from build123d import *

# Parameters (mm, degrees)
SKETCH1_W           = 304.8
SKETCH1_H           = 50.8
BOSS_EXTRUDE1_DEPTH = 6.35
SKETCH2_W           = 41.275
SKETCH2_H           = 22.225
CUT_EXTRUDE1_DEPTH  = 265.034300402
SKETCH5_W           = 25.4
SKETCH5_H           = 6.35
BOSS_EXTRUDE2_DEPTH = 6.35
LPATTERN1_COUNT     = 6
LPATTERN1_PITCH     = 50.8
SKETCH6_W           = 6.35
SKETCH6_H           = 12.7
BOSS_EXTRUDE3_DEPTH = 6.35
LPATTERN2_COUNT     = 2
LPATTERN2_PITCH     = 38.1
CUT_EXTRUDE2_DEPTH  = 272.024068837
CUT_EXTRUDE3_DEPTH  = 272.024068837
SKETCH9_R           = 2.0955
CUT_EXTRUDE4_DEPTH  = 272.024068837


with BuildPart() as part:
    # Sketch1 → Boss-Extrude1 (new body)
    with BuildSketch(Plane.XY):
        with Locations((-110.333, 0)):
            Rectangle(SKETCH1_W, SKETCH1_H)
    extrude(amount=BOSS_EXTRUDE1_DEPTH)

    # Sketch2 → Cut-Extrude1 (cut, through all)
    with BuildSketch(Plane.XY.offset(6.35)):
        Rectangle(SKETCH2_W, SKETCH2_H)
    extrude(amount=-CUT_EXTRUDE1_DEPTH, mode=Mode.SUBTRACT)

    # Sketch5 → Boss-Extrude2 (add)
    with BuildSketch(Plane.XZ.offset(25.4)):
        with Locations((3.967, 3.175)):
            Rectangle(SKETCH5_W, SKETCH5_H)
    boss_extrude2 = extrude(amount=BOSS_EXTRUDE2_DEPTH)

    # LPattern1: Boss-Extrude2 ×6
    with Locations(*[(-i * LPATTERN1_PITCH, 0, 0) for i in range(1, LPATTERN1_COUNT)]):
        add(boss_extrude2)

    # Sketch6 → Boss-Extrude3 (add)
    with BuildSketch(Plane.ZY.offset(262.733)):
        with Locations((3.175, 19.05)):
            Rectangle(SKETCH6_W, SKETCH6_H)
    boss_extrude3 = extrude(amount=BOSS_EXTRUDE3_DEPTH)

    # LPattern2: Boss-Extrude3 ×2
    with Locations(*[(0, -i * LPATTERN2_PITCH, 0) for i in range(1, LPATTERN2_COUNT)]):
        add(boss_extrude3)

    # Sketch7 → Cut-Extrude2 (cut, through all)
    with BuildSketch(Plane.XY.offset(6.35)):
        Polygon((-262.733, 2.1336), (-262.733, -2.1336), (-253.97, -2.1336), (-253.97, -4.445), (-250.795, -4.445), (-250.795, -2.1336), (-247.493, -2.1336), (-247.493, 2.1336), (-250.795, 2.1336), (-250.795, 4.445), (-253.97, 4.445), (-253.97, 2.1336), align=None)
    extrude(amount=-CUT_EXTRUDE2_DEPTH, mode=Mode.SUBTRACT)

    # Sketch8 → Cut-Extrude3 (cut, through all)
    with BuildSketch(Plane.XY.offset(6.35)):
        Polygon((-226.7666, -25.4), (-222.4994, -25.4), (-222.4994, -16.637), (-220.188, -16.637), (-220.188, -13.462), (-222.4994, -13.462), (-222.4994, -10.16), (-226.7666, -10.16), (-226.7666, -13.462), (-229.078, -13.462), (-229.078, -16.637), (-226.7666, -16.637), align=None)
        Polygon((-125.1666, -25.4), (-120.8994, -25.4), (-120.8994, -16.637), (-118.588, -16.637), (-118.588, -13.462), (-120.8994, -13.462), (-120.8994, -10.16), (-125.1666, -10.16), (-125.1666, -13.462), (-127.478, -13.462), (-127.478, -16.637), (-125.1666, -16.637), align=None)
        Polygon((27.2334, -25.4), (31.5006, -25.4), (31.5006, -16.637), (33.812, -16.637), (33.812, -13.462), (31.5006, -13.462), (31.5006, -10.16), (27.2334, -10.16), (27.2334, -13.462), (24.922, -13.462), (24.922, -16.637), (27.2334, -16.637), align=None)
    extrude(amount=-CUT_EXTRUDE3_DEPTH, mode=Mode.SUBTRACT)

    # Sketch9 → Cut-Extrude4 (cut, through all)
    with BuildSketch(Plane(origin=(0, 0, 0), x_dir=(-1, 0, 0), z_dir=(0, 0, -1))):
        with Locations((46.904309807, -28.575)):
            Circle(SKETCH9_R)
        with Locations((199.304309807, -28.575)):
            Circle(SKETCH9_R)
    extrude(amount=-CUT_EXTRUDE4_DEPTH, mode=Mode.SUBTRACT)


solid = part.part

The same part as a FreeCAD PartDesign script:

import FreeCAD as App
import Part
import Sketcher
from FreeCAD import Vector
Q = App.Units.Quantity


def add_polygon(sketch, points):
    """Adds a closed chain of lines whose ends are joined by coincident constraints."""
    first, n = sketch.GeometryCount, len(points)
    for a, b in zip(points, points[1:] + points[:1]):
        sketch.addGeometry(Part.LineSegment(App.Vector(*a, 0), App.Vector(*b, 0)), False)
    for i in range(n):
        sketch.addConstraint(Sketcher.Constraint("Coincident", first + i, 2, first + (i + 1) % n, 1))

doc = App.newDocument("Part")
params = doc.addObject("Spreadsheet::Sheet", "Params")
for row, (alias, value) in enumerate([
    ("sketch1_width", "12 in"),
    ("sketch1_height", "2 in"),
    ("pad1_length", "0.25 in"),
    ("sketch2_width", "1.625 in"),
    ("sketch2_height", "0.875 in"),
    ("sketch3_width", "1 in"),
    ("sketch3_height", "0.25 in"),
    ("pad2_length", "0.25 in"),
    ("linearpattern_pitch", "2 in"),
    ("sketch4_width", "0.5 in"),
    ("sketch4_height", "0.25 in"),
    ("pad3_length", "0.25 in"),
    ("linearpattern2_pitch", "1.5 in"),
    ("sketch5_width", "0.13 in"),
    ("sketch5_width2", "0.345 in"),
    ("sketch5_height", "0.168 in"),
    ("sketch5_height2", "0.091 in"),
    ("sketch6_height", "0.13 in"),
    ("sketch6_width", "0.168 in"),
    ("sketch6_width2", "0.091 in"),
    ("sketch6_height2", "0.345 in"),
    ("sketch7_diameter", "0.165 in"),
], start=1):
    params.set(f"A{row}", alias)
    params.set(f"B{row}", "=" + value)
    params.setAlias(f"B{row}", alias)

body = doc.addObject("PartDesign::Body", "Body")

# Sketch on XY plane
sketch1 = doc.addObject("Sketcher::SketchObject", "Sketch")
body.addObject(sketch1)
sketch1.AttachmentSupport = (doc.XY_Plane, [""])
sketch1.MapMode = "FlatFace"
add_polygon(sketch1, [(-262.733, 25.4), (-262.733, -25.4), (42.067, -25.4), (42.067, 25.4)])  # lines 0-3
sketch1.addConstraint([
    Sketcher.Constraint("Vertical", 0),
    Sketcher.Constraint("Horizontal", 1),
    Sketcher.Constraint("Vertical", 2),
    Sketcher.Constraint("Horizontal", 3),
    Sketcher.Constraint("DistanceX", 1, 1, 1, 2, Q("12 in")),
    Sketcher.Constraint("DistanceY", 0, 2, 0, 1, Q("2 in")),
    Sketcher.Constraint("DistanceY", 0, 2, -1, 1, Q("1 in")),
    Sketcher.Constraint("DistanceX", 0, 2, -1, 1, Q("262.733 mm")),
])
sketch1.setExpression("Constraints[8]", "Params.sketch1_width")
sketch1.setExpression("Constraints[9]", "Params.sketch1_height")
pad1 = doc.addObject("PartDesign::Pad", "Pad")
body.addObject(pad1)
pad1.Profile = sketch1
pad1.setExpression("Length", "Params.pad1_length")

# Sketch on XY plane
sketch2 = doc.addObject("Sketcher::SketchObject", "Sketch001")
body.addObject(sketch2)
sketch2.AttachmentSupport = (doc.XY_Plane, [""])
sketch2.MapMode = "FlatFace"
sketch2.AttachmentOffset = App.Placement(Vector(0, 0, 0.25 * 25.4), App.Rotation())
add_polygon(sketch2, [(-20.6375, 11.1125), (-20.6375, -11.1125), (20.6375, -11.1125), (20.6375, 11.1125)])  # lines 0-3
sketch2.addConstraint([
    Sketcher.Constraint("Vertical", 0),
    Sketcher.Constraint("Horizontal", 1),
    Sketcher.Constraint("Vertical", 2),
    Sketcher.Constraint("Horizontal", 3),
    Sketcher.Constraint("Symmetric", 0, 2, 2, 2, -1, 1),
    Sketcher.Constraint("DistanceX", 1, 1, 1, 2, Q("1.625 in")),
    Sketcher.Constraint("DistanceY", 0, 2, 0, 1, Q("0.875 in")),
])
sketch2.setExpression("Constraints[9]", "Params.sketch2_width")
sketch2.setExpression("Constraints[10]", "Params.sketch2_height")
pocket1 = doc.addObject("PartDesign::Pocket", "Pocket")
body.addObject(pocket1)
pocket1.Profile = sketch2
pocket1.Type = "ThroughAll"

# Sketch on XZ plane
sketch3 = doc.addObject("Sketcher::SketchObject", "Sketch002")
body.addObject(sketch3)
sketch3.AttachmentSupport = (doc.XZ_Plane, [""])
sketch3.MapMode = "FlatFace"
sketch3.AttachmentOffset = App.Placement(Vector(0, 0, 1 * 25.4), App.Rotation())
add_polygon(sketch3, [(-8.733, 6.35), (-8.733, 0), (16.667, 0), (16.667, 6.35)])  # lines 0-3
sketch3.addConstraint([
    Sketcher.Constraint("Vertical", 0),
    Sketcher.Constraint("Horizontal", 1),
    Sketcher.Constraint("Vertical", 2),
    Sketcher.Constraint("Horizontal", 3),
    Sketcher.Constraint("PointOnObject", 0, 2, -1),
    Sketcher.Constraint("DistanceX", 1, 1, 1, 2, Q("1 in")),
    Sketcher.Constraint("DistanceY", 0, 2, 0, 1, Q("0.25 in")),
    Sketcher.Constraint("DistanceX", 0, 2, -1, 1, Q("8.733 mm")),
])
sketch3.setExpression("Constraints[9]", "Params.sketch3_width")
sketch3.setExpression("Constraints[10]", "Params.sketch3_height")
pad2 = doc.addObject("PartDesign::Pad", "Pad001")
body.addObject(pad2)
pad2.Profile = sketch3
pad2.setExpression("Length", "Params.pad2_length")
doc.recompute()

linearpattern = doc.addObject("PartDesign::LinearPattern", "LinearPattern")
body.addObject(linearpattern)
linearpattern.Originals = [pad2]
linearpattern.Direction = (doc.X_Axis, [""])
linearpattern.Mode = "offset"
linearpattern.setExpression("Offset", "Params.linearpattern_pitch")
linearpattern.Occurrences = 6
linearpattern.Reversed = True
body.Tip = linearpattern

# Sketch on YZ plane
sketch4 = doc.addObject("Sketcher::SketchObject", "Sketch003")
body.addObject(sketch4)
sketch4.AttachmentSupport = (doc.YZ_Plane, [""])
sketch4.MapMode = "FlatFace"
sketch4.AttachmentOffset = App.Placement(Vector(0, 0, -262.733), App.Rotation())
add_polygon(sketch4, [(25.4, 0), (12.7, 0), (12.7, 6.35), (25.4, 6.35)])  # lines 0-3
sketch4.addConstraint([
    Sketcher.Constraint("Horizontal", 0),
    Sketcher.Constraint("Vertical", 1),
    Sketcher.Constraint("Horizontal", 2),
    Sketcher.Constraint("Vertical", 3),
    Sketcher.Constraint("PointOnObject", 0, 2, -1),
    Sketcher.Constraint("DistanceX", 0, 2, 0, 1, Q("0.5 in")),
    Sketcher.Constraint("DistanceX", -1, 1, 2, 2, Q("1 in")),
    Sketcher.Constraint("DistanceY", 1, 1, 1, 2, Q("0.25 in")),
])
sketch4.setExpression("Constraints[9]", "Params.sketch4_width")
sketch4.setExpression("Constraints[11]", "Params.sketch4_height")
pad3 = doc.addObject("PartDesign::Pad", "Pad002")
body.addObject(pad3)
pad3.Profile = sketch4
pad3.setExpression("Length", "Params.pad3_length")
pad3.Reversed = True
doc.recompute()

linearpattern2 = doc.addObject("PartDesign::LinearPattern", "LinearPattern001")
body.addObject(linearpattern2)
linearpattern2.Originals = [pad3]
linearpattern2.Direction = (doc.Y_Axis, [""])
linearpattern2.Mode = "offset"
linearpattern2.setExpression("Offset", "Params.linearpattern2_pitch")
linearpattern2.Occurrences = 2
linearpattern2.Reversed = True
body.Tip = linearpattern2

# Sketch on XY plane
sketch5 = doc.addObject("Sketcher::SketchObject", "Sketch004")
body.addObject(sketch5)
sketch5.AttachmentSupport = (doc.XY_Plane, [""])
sketch5.MapMode = "FlatFace"
sketch5.AttachmentOffset = App.Placement(Vector(0, 0, 0.25 * 25.4), App.Rotation())
add_polygon(sketch5, [(-262.733, 2.1336), (-262.733, -2.1336), (-253.97, -2.1336), (-253.97, -4.445), (-250.795, -4.445), (-250.795, -2.1336), (-247.493, -2.1336), (-247.493, 2.1336), (-250.795, 2.1336), (-250.795, 4.445), (-253.97, 4.445), (-253.97, 2.1336)])  # lines 0-11
sketch5.addConstraint([
    Sketcher.Constraint("Vertical", 0),
    Sketcher.Constraint("Horizontal", 1),
    Sketcher.Constraint("Vertical", 2),
    Sketcher.Constraint("Horizontal", 3),
    Sketcher.Constraint("Vertical", 4),
    Sketcher.Constraint("Horizontal", 5),
    Sketcher.Constraint("Vertical", 6),
    Sketcher.Constraint("Horizontal", 7),
    Sketcher.Constraint("Vertical", 8),
    Sketcher.Constraint("Horizontal", 9),
    Sketcher.Constraint("Vertical", 10),
    Sketcher.Constraint("Horizontal", 11),
    Sketcher.Constraint("Symmetric", 4, 2, 7, 2, -1),
    Sketcher.Constraint("Symmetric", 2, 2, 9, 2, -1),
    Sketcher.Constraint("Horizontal", 1, 2, 4, 2),
    Sketcher.Constraint("Horizontal", 7, 2, 10, 2),
    Sketcher.Constraint("DistanceX", 5, 1, 5, 2, Q("0.13 in")),
    Sketcher.Constraint("DistanceX", 0, 2, 5, 2, Q("0.6 in")),
    Sketcher.Constraint("DistanceX", 1, 1, 1, 2, Q("0.345 in")),
    Sketcher.Constraint("DistanceY", 0, 2, 0, 1, Q("0.168 in")),
    Sketcher.Constraint("DistanceY", 2, 2, 2, 1, Q("0.091 in")),
    Sketcher.Constraint("DistanceX", 0, 2, -1, 1, Q("262.733 mm")),
])
sketch5.setExpression("Constraints[28]", "Params.sketch5_width")
sketch5.setExpression("Constraints[30]", "Params.sketch5_width2")
sketch5.setExpression("Constraints[31]", "Params.sketch5_height")
sketch5.setExpression("Constraints[32]", "Params.sketch5_height2")
pocket2 = doc.addObject("PartDesign::Pocket", "Pocket001")
body.addObject(pocket2)
pocket2.Profile = sketch5
pocket2.Type = "ThroughAll"

# Sketch on XY plane
sketch6 = doc.addObject("Sketcher::SketchObject", "Sketch005")
body.addObject(sketch6)
sketch6.AttachmentSupport = (doc.XY_Plane, [""])
sketch6.MapMode = "FlatFace"
sketch6.AttachmentOffset = App.Placement(Vector(0, 0, 0.25 * 25.4), App.Rotation())
add_polygon(sketch6, [(-226.7666, -25.4), (-222.4994, -25.4), (-222.4994, -16.637), (-220.188, -16.637), (-220.188, -13.462), (-222.4994, -13.462), (-222.4994, -10.16), (-226.7666, -10.16), (-226.7666, -13.462), (-229.078, -13.462), (-229.078, -16.637), (-226.7666, -16.637)])  # lines 0-11
add_polygon(sketch6, [(-125.1666, -25.4), (-120.8994, -25.4), (-120.8994, -16.637), (-118.588, -16.637), (-118.588, -13.462), (-120.8994, -13.462), (-120.8994, -10.16), (-125.1666, -10.16), (-125.1666, -13.462), (-127.478, -13.462), (-127.478, -16.637), (-125.1666, -16.637)])  # lines 12-23
add_polygon(sketch6, [(27.2334, -25.4), (31.5006, -25.4), (31.5006, -16.637), (33.812, -16.637), (33.812, -13.462), (31.5006, -13.462), (31.5006, -10.16), (27.2334, -10.16), (27.2334, -13.462), (24.922, -13.462), (24.922, -16.637), (27.2334, -16.637)])  # lines 24-35
sketch6.addConstraint([
    Sketcher.Constraint("Horizontal", 0),
    Sketcher.Constraint("Vertical", 1),
    Sketcher.Constraint("Horizontal", 2),
    Sketcher.Constraint("Vertical", 3),
    Sketcher.Constraint("Horizontal", 4),
    Sketcher.Constraint("Vertical", 5),
    Sketcher.Constraint("Horizontal", 6),
    Sketcher.Constraint("Vertical", 7),
    Sketcher.Constraint("Horizontal", 8),
    Sketcher.Constraint("Vertical", 9),
    Sketcher.Constraint("Horizontal", 10),
    Sketcher.Constraint("Vertical", 11),
    Sketcher.Constraint("Horizontal", 12),
    Sketcher.Constraint("Vertical", 13),
    Sketcher.Constraint("Horizontal", 14),
    Sketcher.Constraint("Vertical", 15),
    Sketcher.Constraint("Horizontal", 16),
    Sketcher.Constraint("Vertical", 17),
    Sketcher.Constraint("Horizontal", 18),
    Sketcher.Constraint("Vertical", 19),
    Sketcher.Constraint("Horizontal", 20),
    Sketcher.Constraint("Vertical", 21),
    Sketcher.Constraint("Horizontal", 22),
    Sketcher.Constraint("Vertical", 23),
    Sketcher.Constraint("Horizontal", 24),
    Sketcher.Constraint("Vertical", 25),
    Sketcher.Constraint("Horizontal", 26),
    Sketcher.Constraint("Vertical", 27),
    Sketcher.Constraint("Horizontal", 28),
    Sketcher.Constraint("Vertical", 29),
    Sketcher.Constraint("Horizontal", 30),
    Sketcher.Constraint("Vertical", 31),
    Sketcher.Constraint("Horizontal", 32),
    Sketcher.Constraint("Vertical", 33),
    Sketcher.Constraint("Horizontal", 34),
    Sketcher.Constraint("Vertical", 35),
    Sketcher.Constraint("Horizontal", 4, 2, 7, 2),
    Sketcher.Constraint("Horizontal", 2, 2, 9, 2),
    Sketcher.Constraint("Horizontal", 11, 2, 12, 2),
    Sketcher.Constraint("Horizontal", 10, 2, 13, 2),
    Sketcher.Constraint("Horizontal", 8, 2, 15, 2),
    Sketcher.Constraint("Horizontal", 6, 2, 17, 2),
    Sketcher.Constraint("Horizontal", 16, 2, 19, 2),
    Sketcher.Constraint("Horizontal", 14, 2, 21, 2),
    Sketcher.Constraint("Horizontal", 23, 2, 24, 2),
    Sketcher.Constraint("Horizontal", 22, 2, 25, 2),
    Sketcher.Constraint("Horizontal", 20, 2, 27, 2),
    Sketcher.Constraint("Horizontal", 18, 2, 29, 2),
    Sketcher.Constraint("Horizontal", 28, 2, 31, 2),
    Sketcher.Constraint("Horizontal", 26, 2, 33, 2),
    Sketcher.Constraint("Vertical", 1, 2, 4, 2),
    Sketcher.Constraint("Vertical", 7, 2, 10, 2),
    Sketcher.Constraint("Vertical", 13, 2, 16, 2),
    Sketcher.Constraint("Vertical", 19, 2, 22, 2),
    Sketcher.Constraint("Vertical", 25, 2, 28, 2),
    Sketcher.Constraint("Vertical", 31, 2, 34, 2),
    Sketcher.Constraint("Equal", 4, 8),
    Sketcher.Constraint("Equal", 6, 12),
    Sketcher.Constraint("Equal", 10, 14),
    Sketcher.Constraint("Equal", 16, 20),
    Sketcher.Constraint("Equal", 18, 24),
    Sketcher.Constraint("Equal", 22, 26),
    Sketcher.Constraint("Equal", 28, 32),
    Sketcher.Constraint("DistanceY", 0, 2, -1, 1, Q("1 in")),
    Sketcher.Constraint("DistanceX", 0, 2, 12, 2, Q("4 in")),
    Sketcher.Constraint("DistanceX", 12, 2, 24, 2, Q("6 in")),
    Sketcher.Constraint("DistanceY", 5, 1, 5, 2, Q("0.13 in")),
    Sketcher.Constraint("DistanceY", 5, 2, -1, 1, Q("0.4 in")),
    Sketcher.Constraint("DistanceX", 0, 1, 0, 2, Q("0.168 in")),
    Sketcher.Constraint("DistanceX", 2, 1, 2, 2, Q("0.091 in")),
    Sketcher.Constraint("DistanceY", 1, 1, 1, 2, Q("0.345 in")),
    Sketcher.Constraint("DistanceX", 0, 2, -1, 1, Q("222.4994 mm")),
])
sketch6.setExpression("Constraints[102]", "Params.sketch6_height")
sketch6.setExpression("Constraints[104]", "Params.sketch6_width")
sketch6.setExpression("Constraints[105]", "Params.sketch6_width2")
sketch6.setExpression("Constraints[106]", "Params.sketch6_height2")
pocket3 = doc.addObject("PartDesign::Pocket", "Pocket002")
body.addObject(pocket3)
pocket3.Profile = sketch6
pocket3.Type = "ThroughAll"

# Sketch on XY plane
sketch7 = doc.addObject("Sketcher::SketchObject", "Sketch006")
body.addObject(sketch7)
sketch7.AttachmentSupport = (doc.XY_Plane, [""])
sketch7.MapMode = "FlatFace"
sketch7.addGeometry([
    Part.Circle(Vector(-46.90431, -28.575, 0), Vector(0, 0, 1), 2.0955),
    Part.Circle(Vector(-199.30431, -28.575, 0), Vector(0, 0, 1), 2.0955),
], False)
sketch7.addConstraint([
    Sketcher.Constraint("Equal", 0, 1),
    Sketcher.Constraint("Horizontal", 0, 3, 1, 3),
    Sketcher.Constraint("Diameter", 0, Q("0.165 in")),
    Sketcher.Constraint("DistanceX", 1, 3, 0, 3, Q("6 in")),
    Sketcher.Constraint("DistanceY", 0, 3, -1, 1, Q("1.125 in")),
    Sketcher.Constraint("DistanceX", 0, 3, -1, 1, Q("46.90431 mm")),
])
sketch7.setExpression("Constraints[2]", "Params.sketch7_diameter")
pocket4 = doc.addObject("PartDesign::Pocket", "Pocket003")
body.addObject(pocket4)
pocket4.Profile = sketch7
pocket4.Type = "ThroughAll"
pocket4.Reversed = True

doc.recompute()
